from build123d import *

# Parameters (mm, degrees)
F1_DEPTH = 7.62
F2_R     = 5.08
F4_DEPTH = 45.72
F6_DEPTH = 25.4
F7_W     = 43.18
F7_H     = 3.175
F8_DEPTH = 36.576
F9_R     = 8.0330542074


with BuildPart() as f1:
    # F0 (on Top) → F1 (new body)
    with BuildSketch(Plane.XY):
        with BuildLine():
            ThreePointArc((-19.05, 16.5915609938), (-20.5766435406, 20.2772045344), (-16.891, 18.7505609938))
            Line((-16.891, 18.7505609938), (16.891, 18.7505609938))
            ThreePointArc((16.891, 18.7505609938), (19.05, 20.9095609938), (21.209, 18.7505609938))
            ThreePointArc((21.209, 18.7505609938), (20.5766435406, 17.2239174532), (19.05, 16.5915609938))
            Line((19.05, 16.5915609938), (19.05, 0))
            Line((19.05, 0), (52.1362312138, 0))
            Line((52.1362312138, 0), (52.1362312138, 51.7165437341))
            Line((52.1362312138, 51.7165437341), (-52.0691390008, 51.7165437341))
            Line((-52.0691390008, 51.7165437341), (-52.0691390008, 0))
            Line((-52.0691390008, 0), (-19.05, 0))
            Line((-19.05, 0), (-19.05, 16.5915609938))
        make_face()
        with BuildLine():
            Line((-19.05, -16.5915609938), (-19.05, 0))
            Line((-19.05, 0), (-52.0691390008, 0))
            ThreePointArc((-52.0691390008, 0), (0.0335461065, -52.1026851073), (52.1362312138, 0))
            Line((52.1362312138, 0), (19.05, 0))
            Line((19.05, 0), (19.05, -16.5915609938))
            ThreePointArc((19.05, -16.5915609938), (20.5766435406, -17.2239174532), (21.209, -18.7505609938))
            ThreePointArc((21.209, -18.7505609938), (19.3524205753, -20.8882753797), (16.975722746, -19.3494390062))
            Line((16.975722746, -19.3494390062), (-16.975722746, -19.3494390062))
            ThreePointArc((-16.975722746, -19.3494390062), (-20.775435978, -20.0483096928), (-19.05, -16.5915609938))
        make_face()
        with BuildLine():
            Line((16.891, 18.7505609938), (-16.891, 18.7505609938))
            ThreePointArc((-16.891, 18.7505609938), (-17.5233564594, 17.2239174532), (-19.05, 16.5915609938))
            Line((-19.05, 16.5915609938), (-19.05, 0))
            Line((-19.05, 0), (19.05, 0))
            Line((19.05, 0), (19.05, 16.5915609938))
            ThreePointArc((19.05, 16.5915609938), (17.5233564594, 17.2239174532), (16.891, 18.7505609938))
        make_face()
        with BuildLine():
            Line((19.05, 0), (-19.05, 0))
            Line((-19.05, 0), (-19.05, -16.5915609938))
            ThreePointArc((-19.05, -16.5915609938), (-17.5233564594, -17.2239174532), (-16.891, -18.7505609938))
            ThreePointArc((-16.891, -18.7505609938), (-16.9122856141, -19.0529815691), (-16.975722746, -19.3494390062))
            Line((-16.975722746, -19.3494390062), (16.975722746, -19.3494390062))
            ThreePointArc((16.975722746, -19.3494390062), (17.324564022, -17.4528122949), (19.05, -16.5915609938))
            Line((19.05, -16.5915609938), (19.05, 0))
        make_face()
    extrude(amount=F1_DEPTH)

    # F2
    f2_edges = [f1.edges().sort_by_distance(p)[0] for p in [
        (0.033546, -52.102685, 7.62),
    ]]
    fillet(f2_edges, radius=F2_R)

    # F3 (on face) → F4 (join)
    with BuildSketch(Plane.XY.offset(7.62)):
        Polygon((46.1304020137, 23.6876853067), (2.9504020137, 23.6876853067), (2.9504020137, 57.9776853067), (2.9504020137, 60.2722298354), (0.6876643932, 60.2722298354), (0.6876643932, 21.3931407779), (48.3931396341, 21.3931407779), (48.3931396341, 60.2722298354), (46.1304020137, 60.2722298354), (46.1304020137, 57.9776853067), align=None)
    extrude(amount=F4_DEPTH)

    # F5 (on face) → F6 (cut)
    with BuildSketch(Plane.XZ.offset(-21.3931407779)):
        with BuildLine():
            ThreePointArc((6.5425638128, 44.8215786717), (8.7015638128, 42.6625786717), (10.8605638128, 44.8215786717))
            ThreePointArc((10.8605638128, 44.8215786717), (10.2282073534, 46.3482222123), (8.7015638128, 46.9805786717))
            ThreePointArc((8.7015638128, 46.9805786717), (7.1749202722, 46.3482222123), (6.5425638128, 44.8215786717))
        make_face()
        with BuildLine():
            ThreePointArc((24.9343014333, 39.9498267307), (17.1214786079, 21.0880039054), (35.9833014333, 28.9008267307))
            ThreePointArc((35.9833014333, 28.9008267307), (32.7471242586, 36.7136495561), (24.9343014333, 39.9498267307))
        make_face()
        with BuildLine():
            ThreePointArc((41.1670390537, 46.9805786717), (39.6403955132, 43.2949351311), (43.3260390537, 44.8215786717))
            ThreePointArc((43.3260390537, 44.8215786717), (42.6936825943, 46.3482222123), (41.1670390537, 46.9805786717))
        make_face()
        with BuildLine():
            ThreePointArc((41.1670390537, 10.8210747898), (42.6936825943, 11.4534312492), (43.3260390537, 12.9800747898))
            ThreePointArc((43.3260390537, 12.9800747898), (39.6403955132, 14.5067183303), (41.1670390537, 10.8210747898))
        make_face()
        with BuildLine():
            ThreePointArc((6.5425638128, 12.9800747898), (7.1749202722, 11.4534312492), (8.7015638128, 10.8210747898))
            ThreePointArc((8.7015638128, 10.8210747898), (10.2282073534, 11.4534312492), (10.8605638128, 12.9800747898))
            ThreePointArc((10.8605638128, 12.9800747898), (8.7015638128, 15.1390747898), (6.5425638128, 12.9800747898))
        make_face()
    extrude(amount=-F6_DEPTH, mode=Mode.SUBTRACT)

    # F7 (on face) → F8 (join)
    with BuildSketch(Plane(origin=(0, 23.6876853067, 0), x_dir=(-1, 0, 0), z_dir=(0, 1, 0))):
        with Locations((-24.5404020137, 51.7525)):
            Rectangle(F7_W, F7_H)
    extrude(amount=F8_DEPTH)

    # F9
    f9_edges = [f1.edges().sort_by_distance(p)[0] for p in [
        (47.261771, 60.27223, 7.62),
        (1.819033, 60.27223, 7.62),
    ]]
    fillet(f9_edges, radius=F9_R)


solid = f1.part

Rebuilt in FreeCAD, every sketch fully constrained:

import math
import FreeCAD as App
import Part
import Sketcher
Q = App.Units.Quantity


def edges_at(feature, points):
    """Names of the edges that pass closest to the given points."""
    edges = feature.Shape.Edges
    near = lambda p: min(range(len(edges)), key=lambda i: edges[i].distToShape(Part.Vertex(*p))[0])
    return sorted({f"Edge{near(p) + 1}" for p in points})

doc = App.newDocument("Part")
params = doc.addObject("Spreadsheet::Sheet", "Params")
for row, (alias, value) in enumerate([
    ("sketch1_radius", "0.085 in"),
    ("pad1_length", "0.3 in"),
    ("fillet_radius", "0.2 in"),
    ("sketch2_width", "1.7 in"),
    ("pad2_length", "1.8 in"),
    ("sketch3_radius", "0.085 in"),
    ("sketch3_radius2", "0.435 in"),
    ("pocket1_length", "1 in"),
    ("sketch4_width", "1.7 in"),
    ("sketch4_height", "0.125 in"),
    ("pad3_length", "1.44 in"),
    ("fillet2_radius", "8.033054 mm"),
], start=1):
    params.set(f"A{row}", alias)
    params.set(f"B{row}", "=" + value)
    params.setAlias(f"B{row}", alias)

body = doc.addObject("PartDesign::Body", "Body")

# Sketch on XY plane
sketch1 = body.newObject("Sketcher::SketchObject", "Sketch")
sketch1.AttachmentSupport = (doc.getObject("XY_Plane"), [""])
sketch1.MapMode = "FlatFace"
sketch1.addGeometry([
    Part.LineSegment(App.Vector(52.1, 0, 0), App.Vector(52.1, 51.7, 0)),  # 0
    Part.LineSegment(App.Vector(52.1, 51.7, 0), App.Vector(-52.1, 51.7, 0)),  # 1
    Part.LineSegment(App.Vector(-52.1, 51.7, 0), App.Vector(-52.1, 0, 0)),  # 2
    Part.ArcOfCircle(Part.Circle(App.Vector(0, 0, 0), App.Vector(0, 0, 1), 52.1), math.radians(180), math.radians(360)),  # 3
    Part.ArcOfCircle(Part.Circle(App.Vector(-19.1, 18.8, 0), App.Vector(0, 0, 1), 2.2), math.radians(0), math.radians(270)),  # 4
    Part.ArcOfCircle(Part.Circle(App.Vector(-19.1, 18.8, 0), App.Vector(0, 0, 1), 2.2), math.radians(-90), math.radians(0)),  # 5
    Part.ArcOfCircle(Part.Circle(App.Vector(19.1, 18.8, 0), App.Vector(0, 0, 1), 2.2), math.radians(0), math.radians(180)),  # 6
    Part.ArcOfCircle(Part.Circle(App.Vector(19.1, 18.8, 0), App.Vector(0, 0, 1), 2.2), math.radians(-90), math.radians(0)),  # 7
    Part.ArcOfCircle(Part.Circle(App.Vector(19.1, 18.8, 0), App.Vector(0, 0, 1), 2.2), math.radians(180), math.radians(270)),  # 8
    Part.ArcOfCircle(Part.Circle(App.Vector(19.1, -18.8, 0), App.Vector(0, 0, 1), 2.2), math.radians(0), math.radians(90)),  # 9
    Part.ArcOfCircle(Part.Circle(App.Vector(19.1, -18.8, 0), App.Vector(0, 0, 1), 2.2), math.radians(-164), math.radians(0)),  # 10
    Part.ArcOfCircle(Part.Circle(App.Vector(19.1, -18.8, 0), App.Vector(0, 0, 1), 2.2), math.radians(90), math.radians(196)),  # 11
    Part.ArcOfCircle(Part.Circle(App.Vector(-19.1, -18.8, 0), App.Vector(0, 0, 1), 2.2), math.radians(90), math.radians(344)),  # 12
    Part.ArcOfCircle(Part.Circle(App.Vector(-19.1, -18.8, 0), App.Vector(0, 0, 1), 2.2), math.radians(0), math.radians(90)),  # 13
    Part.ArcOfCircle(Part.Circle(App.Vector(-19.1, -18.8, 0), App.Vector(0, 0, 1), 2.2), math.radians(-16.1), math.radians(0)),  # 14
], False)
sketch1.addConstraint([
    Sketcher.Constraint("Coincident", 0, 2, 1, 1),
    Sketcher.Constraint("Coincident", 1, 2, 2, 1),
    Sketcher.Constraint("Tangent", 2, 2, 3, 1),
    Sketcher.Constraint("Tangent", 3, 2, 0, 1),
    Sketcher.Constraint("Tangent", 4, 1, 5, 2),
    Sketcher.Constraint("Coincident", 5, 1, 4, 2),
    Sketcher.Constraint("Tangent", 6, 1, 7, 2),
    Sketcher.Constraint("Tangent", 7, 1, 8, 2),
    Sketcher.Constraint("Tangent", 8, 1, 6, 2),
    Sketcher.Constraint("Tangent", 9, 1, 10, 2),
    Sketcher.Constraint("Tangent", 10, 1, 11, 2),
    Sketcher.Constraint("Tangent", 11, 1, 9, 2),
    Sketcher.Constraint("Tangent", 12, 1, 13, 2),
    Sketcher.Constraint("Tangent", 13, 1, 14, 2),
    Sketcher.Constraint("Tangent", 14, 1, 12, 2),
    Sketcher.Constraint("Vertical", 0),
    Sketcher.Constraint("Horizontal", 1),
    Sketcher.Constraint("Vertical", 2),
    Sketcher.Constraint("Equal", 5, 6),
    Sketcher.Constraint("Equal", 8, 9),
    Sketcher.Constraint("Equal", 11, 12),
    Sketcher.Constraint("Symmetric", 4, 3, 9, 3, -1, 1),
    Sketcher.Constraint("Symmetric", 6, 3, 12, 3, -1, 1),
    Sketcher.Constraint("Symmetric", 4, 3, 6, 3, -2),
    Sketcher.Constraint("PointOnObject", 3, 3, -1),
    Sketcher.Constraint("Horizontal", 8, 3, 4, 1),
    Sketcher.Constraint("Horizontal", 4, 1, 6, 1),
    Sketcher.Constraint("Horizontal", 6, 1, 8, 1),
    Sketcher.Constraint("Horizontal", 14, 3, 9, 1),
    Sketcher.Constraint("Horizontal", 9, 1, 13, 1),
    Sketcher.Constraint("Horizontal", 10, 1, 14, 1),
    Sketcher.Constraint("Vertical", 14, 3, 5, 1),
    Sketcher.Constraint("Vertical", 11, 3, 7, 1),
    Sketcher.Constraint("Vertical", 7, 1, 11, 1),
    Sketcher.Constraint("Vertical", 5, 1, 12, 1),
    Sketcher.Constraint("Radius", 4, Q("0.085 in")),
    Sketcher.Constraint("DistanceX", 4, 3, 6, 3, Q("1.5 in")),
    Sketcher.Constraint("Radius", 3, 52.102685),
    Sketcher.Constraint("DistanceY", 0, 1, 0, 2, 51.716544),
    Sketcher.Constraint("DistanceY", -1, 1, 4, 3, 18.750561),
    Sketcher.Constraint("DistanceX", -1, 1, 0, 2, 52.136231),
    Sketcher.Constraint("DistanceY", 10, 1, -1, 1, 19.349439),
])
sketch1.setExpression("Constraints[35]", "Params.sketch1_radius")
pad1 = body.newObject("PartDesign::Pad", "Pad")
pad1.Profile = sketch1
pad1.setExpression("Length", "Params.pad1_length")
doc.recompute()

fillet = body.newObject("PartDesign::Fillet", "Fillet")
fillet.Base = (pad1, edges_at(pad1, [(0.034, -52.103, 7.62)]))
fillet.setExpression("Radius", "Params.fillet_radius")

# Sketch on XY plane
sketch2 = body.newObject("Sketcher::SketchObject", "Sketch001")
sketch2.AttachmentSupport = (doc.getObject("XY_Plane"), [""])
sketch2.MapMode = "FlatFace"
sketch2.AttachmentOffset = App.Placement(App.Vector(0, 0, 0.3 * 25.4), App.Rotation())
sketch2.addGeometry([
    Part.LineSegment(App.Vector(46.1, 23.7, 0), App.Vector(3, 23.7, 0)),  # 0
    Part.LineSegment(App.Vector(3, 23.7, 0), App.Vector(3, 60.3, 0)),  # 1
    Part.LineSegment(App.Vector(3, 60.3, 0), App.Vector(0.7, 60.3, 0)),  # 2
    Part.LineSegment(App.Vector(0.7, 60.3, 0), App.Vector(0.7, 21.4, 0)),  # 3
    Part.LineSegment(App.Vector(0.7, 21.4, 0), App.Vector(48.4, 21.4, 0)),  # 4
    Part.LineSegment(App.Vector(48.4, 21.4, 0), App.Vector(48.4, 60.3, 0)),  # 5
    Part.LineSegment(App.Vector(48.4, 60.3, 0), App.Vector(46.1, 60.3, 0)),  # 6
    Part.LineSegment(App.Vector(46.1, 60.3, 0), App.Vector(46.1, 23.7, 0)),  # 7
], False)
sketch2.addConstraint([
    Sketcher.Constraint("Coincident", 0, 2, 1, 1),
    Sketcher.Constraint("Coincident", 1, 2, 2, 1),
    Sketcher.Constraint("Coincident", 2, 2, 3, 1),
    Sketcher.Constraint("Coincident", 3, 2, 4, 1),
    Sketcher.Constraint("Coincident", 4, 2, 5, 1),
    Sketcher.Constraint("Coincident", 5, 2, 6, 1),
    Sketcher.Constraint("Coincident", 6, 2, 7, 1),
    Sketcher.Constraint("Coincident", 7, 2, 0, 1),
    Sketcher.Constraint("Horizontal", 0),
    Sketcher.Constraint("Vertical", 1),
    Sketcher.Constraint("Horizontal", 2),
    Sketcher.Constraint("Vertical", 3),
    Sketcher.Constraint("Horizontal", 4),
    Sketcher.Constraint("Vertical", 5),
    Sketcher.Constraint("Horizontal", 6),
    Sketcher.Constraint("Vertical", 7),
    Sketcher.Constraint("Horizontal", 2, 2, 5, 2),
    Sketcher.Constraint("Equal", 2, 6),
    Sketcher.Constraint("DistanceX", 0, 2, 0, 1, Q("1.7 in")),
    Sketcher.Constraint("DistanceY", 3, 2, 3, 1, 38.879089),
    Sketcher.Constraint("DistanceX", 2, 2, 2, 1, 2.262738),
    Sketcher.Constraint("DistanceY", 1, 1, 1, 2, 36.584545),
    Sketcher.Constraint("DistanceY", -1, 1, 1, 2, 60.27223),
    Sketcher.Constraint("DistanceX", -1, 1, 4, 2, 48.39314),
])
sketch2.setExpression("Constraints[18]", "Params.sketch2_width")
pad2 = body.newObject("PartDesign::Pad", "Pad001")
pad2.Profile = sketch2
pad2.setExpression("Length", "Params.pad2_length")

# Sketch on XZ plane
sketch3 = body.newObject("Sketcher::SketchObject", "Sketch002")
sketch3.AttachmentSupport = (doc.getObject("XZ_Plane"), [""])
sketch3.MapMode = "FlatFace"
sketch3.AttachmentOffset = App.Placement(App.Vector(0, 0, -21.393141), App.Rotation())
sketch3.addGeometry([
    Part.ArcOfCircle(Part.Circle(App.Vector(8.7, 44.8, 0), App.Vector(0, 0, 1), 2.2), math.radians(180), math.radians(360)),  # 0
    Part.ArcOfCircle(Part.Circle(App.Vector(8.7, 44.8, 0), App.Vector(0, 0, 1), 2.2), math.radians(0), math.radians(90)),  # 1
    Part.ArcOfCircle(Part.Circle(App.Vector(8.7, 44.8, 0), App.Vector(0, 0, 1), 2.2), math.radians(90), math.radians(180)),  # 2
    Part.ArcOfCircle(Part.Circle(App.Vector(24.9, 28.9, 0), App.Vector(0, 0, 1), 11), math.radians(90), math.radians(360)),  # 3
    Part.ArcOfCircle(Part.Circle(App.Vector(24.9, 28.9, 0), App.Vector(0, 0, 1), 11), math.radians(0), math.radians(90)),  # 4
    Part.ArcOfCircle(Part.Circle(App.Vector(41.2, 44.8, 0), App.Vector(0, 0, 1), 2.2), math.radians(90), math.radians(360)),  # 5
    Part.ArcOfCircle(Part.Circle(App.Vector(41.2, 44.8, 0), App.Vector(0, 0, 1), 2.2), math.radians(0), math.radians(90)),  # 6
    Part.ArcOfCircle(Part.Circle(App.Vector(41.2, 13, 0), App.Vector(0, 0, 1), 2.2), math.radians(-90), math.radians(0)),  # 7
    Part.ArcOfCircle(Part.Circle(App.Vector(41.2, 13, 0), App.Vector(0, 0, 1), 2.2), math.radians(0), math.radians(270)),  # 8
    Part.ArcOfCircle(Part.Circle(App.Vector(8.7, 13, 0), App.Vector(0, 0, 1), 2.2), math.radians(180), math.radians(270)),  # 9
    Part.ArcOfCircle(Part.Circle(App.Vector(8.7, 13, 0), App.Vector(0, 0, 1), 2.2), math.radians(-90), math.radians(0)),  # 10
    Part.ArcOfCircle(Part.Circle(App.Vector(8.7, 13, 0), App.Vector(0, 0, 1), 2.2), math.radians(0), math.radians(180)),  # 11
], False)
sketch3.addConstraint([
    Sketcher.Constraint("Tangent", 0, 2, 1, 1),
    Sketcher.Constraint("Tangent", 1, 2, 2, 1),
    Sketcher.Constraint("Tangent", 2, 2, 0, 1),
    Sketcher.Constraint("Tangent", 3, 1, 4, 2),
    Sketcher.Constraint("Coincident", 4, 1, 3, 2),
    Sketcher.Constraint("Tangent", 5, 1, 6, 2),
    Sketcher.Constraint("Coincident", 6, 1, 5, 2),
    Sketcher.Constraint("Tangent", 7, 1, 8, 2),
    Sketcher.Constraint("Coincident", 8, 1, 7, 2),
    Sketcher.Constraint("Tangent", 9, 2, 10, 1),
    Sketcher.Constraint("Tangent", 10, 2, 11, 1),
    Sketcher.Constraint("Tangent", 11, 2, 9, 1),
    Sketcher.Constraint("Equal", 2, 5),
    Sketcher.Constraint("Equal", 6, 7),
    Sketcher.Constraint("Equal", 8, 9),
    Sketcher.Constraint("Horizontal", 2, 3, 5, 3),
    Sketcher.Constraint("Horizontal", 8, 3, 9, 3),
    Sketcher.Constraint("Horizontal", 6, 3, 0, 2),
    Sketcher.Constraint("Horizontal", 0, 2, 2, 2),
    Sketcher.Constraint("Horizontal", 3, 3, 4, 1),
    Sketcher.Constraint("Horizontal", 2, 2, 6, 1),
    Sketcher.Constraint("Horizontal", 11, 3, 8, 1),
    Sketcher.Constraint("Horizontal", 8, 1, 10, 2),
    Sketcher.Constraint("Horizontal", 10, 2, 11, 2),
    Sketcher.Constraint("Vertical", 6, 3, 7, 3),
    Sketcher.Constraint("Vertical", 2, 3, 9, 3),
    Sketcher.Constraint("Vertical", 11, 3, 1, 2),
    Sketcher.Constraint("Vertical", 4, 3, 3, 1),
    Sketcher.Constraint("Vertical", 8, 3, 5, 1),
    Sketcher.Constraint("Vertical", 5, 1, 7, 1),
    Sketcher.Constraint("Vertical", 1, 2, 9, 2),
    Sketcher.Constraint("Radius", 0, Q("0.085 in")),
    Sketcher.Constraint("Radius", 3, Q("0.435 in")),
    Sketcher.Constraint("DistanceX", -1, 1, 3, 3, 24.934301),
    Sketcher.Constraint("DistanceY", -1, 1, 0, 3, 44.821579),
    Sketcher.Constraint("DistanceX", -1, 1, 5, 3, 41.167039),
    Sketcher.Constraint("DistanceY", 3, 3, 0, 3, 15.920752),
    Sketcher.Constraint("DistanceY", 7, 3, 3, 3, 15.920752),
    Sketcher.Constraint("DistanceX", -1, 1, 0, 3, 8.701564),
])
sketch3.setExpression("Constraints[31]", "Params.sketch3_radius")
sketch3.setExpression("Constraints[32]", "Params.sketch3_radius2")
pocket1 = body.newObject("PartDesign::Pocket", "Pocket")
pocket1.Profile = sketch3
pocket1.setExpression("Length", "Params.pocket1_length")

# Sketch on XZ plane
sketch4 = body.newObject("Sketcher::SketchObject", "Sketch003")
sketch4.AttachmentSupport = (doc.getObject("XZ_Plane"), [""])
sketch4.MapMode = "FlatFace"
sketch4.AttachmentOffset = App.Placement(App.Vector(0, 0, -23.687685), App.Rotation())
sketch4.addGeometry([
    Part.LineSegment(App.Vector(46.1, 53.3, 0), App.Vector(46.1, 50.2, 0)),
    Part.LineSegment(App.Vector(46.1, 50.2, 0), App.Vector(3, 50.2, 0)),
    Part.LineSegment(App.Vector(3, 50.2, 0), App.Vector(3, 53.3, 0)),
    Part.LineSegment(App.Vector(3, 53.3, 0), App.Vector(46.1, 53.3, 0)),
], False)
sketch4.addConstraint([
    Sketcher.Constraint("Coincident", 0, 2, 1, 1),
    Sketcher.Constraint("Coincident", 1, 2, 2, 1),
    Sketcher.Constraint("Coincident", 2, 2, 3, 1),
    Sketcher.Constraint("Coincident", 3, 2, 0, 1),
    Sketcher.Constraint("Vertical", 0),
    Sketcher.Constraint("Horizontal", 1),
    Sketcher.Constraint("Vertical", 2),
    Sketcher.Constraint("Horizontal", 3),
    Sketcher.Constraint("DistanceX", 1, 2, 1, 1, Q("1.7 in")),
    Sketcher.Constraint("DistanceY", -1, 1, 2, 2, Q("2.1 in")),
    Sketcher.Constraint("DistanceY", 0, 2, 0, 1, Q("0.125 in")),
    Sketcher.Constraint("DistanceX", -1, 1, 0, 2, 46.130402),
])
sketch4.setExpression("Constraints[8]", "Params.sketch4_width")
sketch4.setExpression("Constraints[10]", "Params.sketch4_height")
pad3 = body.newObject("PartDesign::Pad", "Pad002")
pad3.Profile = sketch4
pad3.setExpression("Length", "Params.pad3_length")
pad3.Reversed = True
doc.recompute()

fillet2 = body.newObject("PartDesign::Fillet", "Fillet001")
fillet2.Base = (pad3, edges_at(pad3, [(47.262, 60.272, 7.62), (1.819, 60.272, 7.62)]))
fillet2.setExpression("Radius", "Params.fillet2_radius")

doc.recompute()
